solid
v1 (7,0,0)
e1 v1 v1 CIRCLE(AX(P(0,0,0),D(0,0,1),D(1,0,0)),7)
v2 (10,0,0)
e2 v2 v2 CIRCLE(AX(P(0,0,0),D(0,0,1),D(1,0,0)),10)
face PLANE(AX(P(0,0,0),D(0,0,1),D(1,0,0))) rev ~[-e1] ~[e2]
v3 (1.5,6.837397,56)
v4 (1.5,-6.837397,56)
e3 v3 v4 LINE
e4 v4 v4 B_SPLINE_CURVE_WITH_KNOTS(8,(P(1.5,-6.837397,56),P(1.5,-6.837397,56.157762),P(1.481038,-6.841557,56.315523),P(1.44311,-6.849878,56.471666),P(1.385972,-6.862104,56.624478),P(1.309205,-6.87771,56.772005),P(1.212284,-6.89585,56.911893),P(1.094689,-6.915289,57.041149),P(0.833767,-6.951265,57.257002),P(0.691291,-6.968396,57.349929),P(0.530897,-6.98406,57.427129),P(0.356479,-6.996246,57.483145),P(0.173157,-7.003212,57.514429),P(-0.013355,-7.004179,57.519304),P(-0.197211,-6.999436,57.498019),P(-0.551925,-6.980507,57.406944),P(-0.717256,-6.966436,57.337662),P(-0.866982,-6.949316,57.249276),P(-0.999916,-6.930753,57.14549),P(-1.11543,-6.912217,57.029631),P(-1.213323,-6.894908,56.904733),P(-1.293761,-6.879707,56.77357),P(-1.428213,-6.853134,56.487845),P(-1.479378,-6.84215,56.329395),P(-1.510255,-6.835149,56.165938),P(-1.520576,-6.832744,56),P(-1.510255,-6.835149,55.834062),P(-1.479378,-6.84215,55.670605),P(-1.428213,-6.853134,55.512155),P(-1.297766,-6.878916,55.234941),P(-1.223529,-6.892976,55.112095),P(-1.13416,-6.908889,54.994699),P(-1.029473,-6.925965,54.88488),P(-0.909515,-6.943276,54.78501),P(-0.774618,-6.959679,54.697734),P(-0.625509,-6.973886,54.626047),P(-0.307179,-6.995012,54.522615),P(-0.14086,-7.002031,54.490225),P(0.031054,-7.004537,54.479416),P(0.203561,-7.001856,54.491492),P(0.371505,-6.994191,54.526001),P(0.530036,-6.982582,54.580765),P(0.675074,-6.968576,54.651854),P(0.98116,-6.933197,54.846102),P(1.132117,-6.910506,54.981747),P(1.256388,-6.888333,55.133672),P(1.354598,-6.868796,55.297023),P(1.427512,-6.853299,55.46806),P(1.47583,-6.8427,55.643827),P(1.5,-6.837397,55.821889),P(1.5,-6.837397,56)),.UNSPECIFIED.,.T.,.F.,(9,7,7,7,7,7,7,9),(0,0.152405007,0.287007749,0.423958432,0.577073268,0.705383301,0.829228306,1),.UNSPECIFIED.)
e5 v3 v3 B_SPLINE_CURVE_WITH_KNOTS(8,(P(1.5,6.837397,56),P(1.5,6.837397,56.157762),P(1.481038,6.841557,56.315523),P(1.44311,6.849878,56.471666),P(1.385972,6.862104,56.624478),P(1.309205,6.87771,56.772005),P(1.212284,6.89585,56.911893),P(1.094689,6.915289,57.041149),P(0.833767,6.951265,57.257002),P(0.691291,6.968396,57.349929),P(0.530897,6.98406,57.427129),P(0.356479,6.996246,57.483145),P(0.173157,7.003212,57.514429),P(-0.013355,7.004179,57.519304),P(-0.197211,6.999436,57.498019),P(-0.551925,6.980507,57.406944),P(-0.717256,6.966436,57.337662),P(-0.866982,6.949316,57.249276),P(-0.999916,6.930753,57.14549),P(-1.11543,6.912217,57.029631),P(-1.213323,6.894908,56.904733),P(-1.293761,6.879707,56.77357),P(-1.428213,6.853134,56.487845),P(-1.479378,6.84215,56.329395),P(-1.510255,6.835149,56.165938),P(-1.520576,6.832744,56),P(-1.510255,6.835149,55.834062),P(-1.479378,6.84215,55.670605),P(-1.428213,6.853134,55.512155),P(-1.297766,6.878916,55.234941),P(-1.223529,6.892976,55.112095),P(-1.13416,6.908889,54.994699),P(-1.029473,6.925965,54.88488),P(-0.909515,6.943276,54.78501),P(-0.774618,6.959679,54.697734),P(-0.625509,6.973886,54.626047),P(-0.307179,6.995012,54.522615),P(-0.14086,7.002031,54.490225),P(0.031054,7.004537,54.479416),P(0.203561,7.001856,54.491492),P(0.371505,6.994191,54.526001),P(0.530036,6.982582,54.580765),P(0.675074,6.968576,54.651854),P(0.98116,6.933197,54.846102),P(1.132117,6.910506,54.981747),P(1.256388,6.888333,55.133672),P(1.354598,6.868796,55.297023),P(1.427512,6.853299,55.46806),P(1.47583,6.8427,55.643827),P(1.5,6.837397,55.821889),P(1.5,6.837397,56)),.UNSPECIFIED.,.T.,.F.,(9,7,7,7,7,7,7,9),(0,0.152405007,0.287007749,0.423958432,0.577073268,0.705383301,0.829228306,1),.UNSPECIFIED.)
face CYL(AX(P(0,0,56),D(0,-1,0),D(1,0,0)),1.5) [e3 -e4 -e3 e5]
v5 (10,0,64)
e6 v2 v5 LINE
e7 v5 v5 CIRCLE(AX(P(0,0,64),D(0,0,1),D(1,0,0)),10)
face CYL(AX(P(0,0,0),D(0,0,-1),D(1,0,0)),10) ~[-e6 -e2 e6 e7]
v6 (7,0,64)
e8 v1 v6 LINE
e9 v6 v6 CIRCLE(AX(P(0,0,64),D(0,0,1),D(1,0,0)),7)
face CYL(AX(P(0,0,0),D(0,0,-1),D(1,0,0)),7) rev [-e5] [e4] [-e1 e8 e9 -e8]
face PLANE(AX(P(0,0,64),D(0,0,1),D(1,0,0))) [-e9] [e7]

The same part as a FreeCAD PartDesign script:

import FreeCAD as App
import Part
import Sketcher

doc = App.newDocument("Part")
body = doc.addObject("PartDesign::Body", "Body")

sketch1 = body.newObject("Sketcher::SketchObject", "Sketch")
sketch1.AttachmentSupport = (doc.getObject("XY_Plane"), [""])
sketch1.MapMode = "FlatFace"
sketch1.addGeometry(Part.Circle(App.Vector(0, 0, 0), App.Vector(0, 0, 1), 10), False)
sketch1.addGeometry(Part.Circle(App.Vector(0, 0, 0), App.Vector(0, 0, 1), 7), False)
sketch1.addConstraint(Sketcher.Constraint("Coincident", 0, 3, -1, 1))
sketch1.addConstraint(Sketcher.Constraint("Coincident", 1, 3, -1, 1))
sketch1.addConstraint(Sketcher.Constraint("Diameter", 0, 20.0))
sketch1.addConstraint(Sketcher.Constraint("Diameter", 1, 14.0))
pad1 = body.newObject("PartDesign::Pad", "Pad")
pad1.Profile = sketch1
pad1.Length = 64

sketch2 = body.newObject("Sketcher::SketchObject", "Sketch001")
sketch2.AttachmentSupport = (doc.getObject("XZ_Plane"), [""])
sketch2.MapMode = "FlatFace"
sketch2.addGeometry(Part.Circle(App.Vector(0, 56, 0), App.Vector(0, 0, 1), 1.5), False)
sketch2.addConstraint(Sketcher.Constraint("PointOnObject", 0, 3, -2))
sketch2.addConstraint(Sketcher.Constraint("Diameter", 0, 3.0))
sketch2.addConstraint(Sketcher.Constraint("DistanceY", -1, 1, 0, 3, 56.0))
pad2 = body.newObject("PartDesign::Pad", "Pad001")
pad2.Profile = sketch2
pad2.Length = 18
pad2.Midplane = True

doc.recompute()
